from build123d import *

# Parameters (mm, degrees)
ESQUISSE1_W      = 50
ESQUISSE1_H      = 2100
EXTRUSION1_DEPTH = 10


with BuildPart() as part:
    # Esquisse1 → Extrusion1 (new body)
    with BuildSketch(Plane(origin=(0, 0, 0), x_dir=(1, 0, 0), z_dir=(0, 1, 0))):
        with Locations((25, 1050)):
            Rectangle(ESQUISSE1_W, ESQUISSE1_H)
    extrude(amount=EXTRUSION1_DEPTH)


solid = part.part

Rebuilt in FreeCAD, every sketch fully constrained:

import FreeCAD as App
import Part
import Sketcher

V = App.Vector
Q = App.Units.Quantity

doc = App.newDocument("Part")
body = doc.addObject("PartDesign::Body", "Body")

# Sketch on XZ plane
sketch1 = body.newObject("Sketcher::SketchObject", "Sketch")
sketch1.AttachmentSupport = (doc.getObject("XZ_Plane"), [""])
sketch1.MapMode = "FlatFace"
sketch1.addGeometry([
    Part.LineSegment(V(0, -2100, 0), V(0, 0, 0)),
    Part.LineSegment(V(0, 0, 0), V(50, 0, 0)),
    Part.LineSegment(V(50, 0, 0), V(50, -2100, 0)),
    Part.LineSegment(V(50, -2100, 0), V(0, -2100, 0)),
], False)
sketch1.addConstraint([
    Sketcher.Constraint("Coincident", 0, 2, 1, 1),
    Sketcher.Constraint("Coincident", 1, 2, 2, 1),
    Sketcher.Constraint("Coincident", 2, 2, 3, 1),
    Sketcher.Constraint("Coincident", 3, 2, 0, 1),
    Sketcher.Constraint("Vertical", 0),
    Sketcher.Constraint("Horizontal", 1),
    Sketcher.Constraint("Vertical", 2),
    Sketcher.Constraint("Horizontal", 3),
    Sketcher.Constraint("Coincident", 0, 2, -1, 1),
    Sketcher.Constraint("DistanceX", 1, 1, 1, 2, Q("50 mm")),
    Sketcher.Constraint("DistanceY", 0, 1, 0, 2, Q("2100 mm")),
])
pad1 = body.newObject("PartDesign::Pad", "Pad")
pad1.Profile = sketch1
pad1.Length = 10
pad1.Reversed = True

doc.recompute()
